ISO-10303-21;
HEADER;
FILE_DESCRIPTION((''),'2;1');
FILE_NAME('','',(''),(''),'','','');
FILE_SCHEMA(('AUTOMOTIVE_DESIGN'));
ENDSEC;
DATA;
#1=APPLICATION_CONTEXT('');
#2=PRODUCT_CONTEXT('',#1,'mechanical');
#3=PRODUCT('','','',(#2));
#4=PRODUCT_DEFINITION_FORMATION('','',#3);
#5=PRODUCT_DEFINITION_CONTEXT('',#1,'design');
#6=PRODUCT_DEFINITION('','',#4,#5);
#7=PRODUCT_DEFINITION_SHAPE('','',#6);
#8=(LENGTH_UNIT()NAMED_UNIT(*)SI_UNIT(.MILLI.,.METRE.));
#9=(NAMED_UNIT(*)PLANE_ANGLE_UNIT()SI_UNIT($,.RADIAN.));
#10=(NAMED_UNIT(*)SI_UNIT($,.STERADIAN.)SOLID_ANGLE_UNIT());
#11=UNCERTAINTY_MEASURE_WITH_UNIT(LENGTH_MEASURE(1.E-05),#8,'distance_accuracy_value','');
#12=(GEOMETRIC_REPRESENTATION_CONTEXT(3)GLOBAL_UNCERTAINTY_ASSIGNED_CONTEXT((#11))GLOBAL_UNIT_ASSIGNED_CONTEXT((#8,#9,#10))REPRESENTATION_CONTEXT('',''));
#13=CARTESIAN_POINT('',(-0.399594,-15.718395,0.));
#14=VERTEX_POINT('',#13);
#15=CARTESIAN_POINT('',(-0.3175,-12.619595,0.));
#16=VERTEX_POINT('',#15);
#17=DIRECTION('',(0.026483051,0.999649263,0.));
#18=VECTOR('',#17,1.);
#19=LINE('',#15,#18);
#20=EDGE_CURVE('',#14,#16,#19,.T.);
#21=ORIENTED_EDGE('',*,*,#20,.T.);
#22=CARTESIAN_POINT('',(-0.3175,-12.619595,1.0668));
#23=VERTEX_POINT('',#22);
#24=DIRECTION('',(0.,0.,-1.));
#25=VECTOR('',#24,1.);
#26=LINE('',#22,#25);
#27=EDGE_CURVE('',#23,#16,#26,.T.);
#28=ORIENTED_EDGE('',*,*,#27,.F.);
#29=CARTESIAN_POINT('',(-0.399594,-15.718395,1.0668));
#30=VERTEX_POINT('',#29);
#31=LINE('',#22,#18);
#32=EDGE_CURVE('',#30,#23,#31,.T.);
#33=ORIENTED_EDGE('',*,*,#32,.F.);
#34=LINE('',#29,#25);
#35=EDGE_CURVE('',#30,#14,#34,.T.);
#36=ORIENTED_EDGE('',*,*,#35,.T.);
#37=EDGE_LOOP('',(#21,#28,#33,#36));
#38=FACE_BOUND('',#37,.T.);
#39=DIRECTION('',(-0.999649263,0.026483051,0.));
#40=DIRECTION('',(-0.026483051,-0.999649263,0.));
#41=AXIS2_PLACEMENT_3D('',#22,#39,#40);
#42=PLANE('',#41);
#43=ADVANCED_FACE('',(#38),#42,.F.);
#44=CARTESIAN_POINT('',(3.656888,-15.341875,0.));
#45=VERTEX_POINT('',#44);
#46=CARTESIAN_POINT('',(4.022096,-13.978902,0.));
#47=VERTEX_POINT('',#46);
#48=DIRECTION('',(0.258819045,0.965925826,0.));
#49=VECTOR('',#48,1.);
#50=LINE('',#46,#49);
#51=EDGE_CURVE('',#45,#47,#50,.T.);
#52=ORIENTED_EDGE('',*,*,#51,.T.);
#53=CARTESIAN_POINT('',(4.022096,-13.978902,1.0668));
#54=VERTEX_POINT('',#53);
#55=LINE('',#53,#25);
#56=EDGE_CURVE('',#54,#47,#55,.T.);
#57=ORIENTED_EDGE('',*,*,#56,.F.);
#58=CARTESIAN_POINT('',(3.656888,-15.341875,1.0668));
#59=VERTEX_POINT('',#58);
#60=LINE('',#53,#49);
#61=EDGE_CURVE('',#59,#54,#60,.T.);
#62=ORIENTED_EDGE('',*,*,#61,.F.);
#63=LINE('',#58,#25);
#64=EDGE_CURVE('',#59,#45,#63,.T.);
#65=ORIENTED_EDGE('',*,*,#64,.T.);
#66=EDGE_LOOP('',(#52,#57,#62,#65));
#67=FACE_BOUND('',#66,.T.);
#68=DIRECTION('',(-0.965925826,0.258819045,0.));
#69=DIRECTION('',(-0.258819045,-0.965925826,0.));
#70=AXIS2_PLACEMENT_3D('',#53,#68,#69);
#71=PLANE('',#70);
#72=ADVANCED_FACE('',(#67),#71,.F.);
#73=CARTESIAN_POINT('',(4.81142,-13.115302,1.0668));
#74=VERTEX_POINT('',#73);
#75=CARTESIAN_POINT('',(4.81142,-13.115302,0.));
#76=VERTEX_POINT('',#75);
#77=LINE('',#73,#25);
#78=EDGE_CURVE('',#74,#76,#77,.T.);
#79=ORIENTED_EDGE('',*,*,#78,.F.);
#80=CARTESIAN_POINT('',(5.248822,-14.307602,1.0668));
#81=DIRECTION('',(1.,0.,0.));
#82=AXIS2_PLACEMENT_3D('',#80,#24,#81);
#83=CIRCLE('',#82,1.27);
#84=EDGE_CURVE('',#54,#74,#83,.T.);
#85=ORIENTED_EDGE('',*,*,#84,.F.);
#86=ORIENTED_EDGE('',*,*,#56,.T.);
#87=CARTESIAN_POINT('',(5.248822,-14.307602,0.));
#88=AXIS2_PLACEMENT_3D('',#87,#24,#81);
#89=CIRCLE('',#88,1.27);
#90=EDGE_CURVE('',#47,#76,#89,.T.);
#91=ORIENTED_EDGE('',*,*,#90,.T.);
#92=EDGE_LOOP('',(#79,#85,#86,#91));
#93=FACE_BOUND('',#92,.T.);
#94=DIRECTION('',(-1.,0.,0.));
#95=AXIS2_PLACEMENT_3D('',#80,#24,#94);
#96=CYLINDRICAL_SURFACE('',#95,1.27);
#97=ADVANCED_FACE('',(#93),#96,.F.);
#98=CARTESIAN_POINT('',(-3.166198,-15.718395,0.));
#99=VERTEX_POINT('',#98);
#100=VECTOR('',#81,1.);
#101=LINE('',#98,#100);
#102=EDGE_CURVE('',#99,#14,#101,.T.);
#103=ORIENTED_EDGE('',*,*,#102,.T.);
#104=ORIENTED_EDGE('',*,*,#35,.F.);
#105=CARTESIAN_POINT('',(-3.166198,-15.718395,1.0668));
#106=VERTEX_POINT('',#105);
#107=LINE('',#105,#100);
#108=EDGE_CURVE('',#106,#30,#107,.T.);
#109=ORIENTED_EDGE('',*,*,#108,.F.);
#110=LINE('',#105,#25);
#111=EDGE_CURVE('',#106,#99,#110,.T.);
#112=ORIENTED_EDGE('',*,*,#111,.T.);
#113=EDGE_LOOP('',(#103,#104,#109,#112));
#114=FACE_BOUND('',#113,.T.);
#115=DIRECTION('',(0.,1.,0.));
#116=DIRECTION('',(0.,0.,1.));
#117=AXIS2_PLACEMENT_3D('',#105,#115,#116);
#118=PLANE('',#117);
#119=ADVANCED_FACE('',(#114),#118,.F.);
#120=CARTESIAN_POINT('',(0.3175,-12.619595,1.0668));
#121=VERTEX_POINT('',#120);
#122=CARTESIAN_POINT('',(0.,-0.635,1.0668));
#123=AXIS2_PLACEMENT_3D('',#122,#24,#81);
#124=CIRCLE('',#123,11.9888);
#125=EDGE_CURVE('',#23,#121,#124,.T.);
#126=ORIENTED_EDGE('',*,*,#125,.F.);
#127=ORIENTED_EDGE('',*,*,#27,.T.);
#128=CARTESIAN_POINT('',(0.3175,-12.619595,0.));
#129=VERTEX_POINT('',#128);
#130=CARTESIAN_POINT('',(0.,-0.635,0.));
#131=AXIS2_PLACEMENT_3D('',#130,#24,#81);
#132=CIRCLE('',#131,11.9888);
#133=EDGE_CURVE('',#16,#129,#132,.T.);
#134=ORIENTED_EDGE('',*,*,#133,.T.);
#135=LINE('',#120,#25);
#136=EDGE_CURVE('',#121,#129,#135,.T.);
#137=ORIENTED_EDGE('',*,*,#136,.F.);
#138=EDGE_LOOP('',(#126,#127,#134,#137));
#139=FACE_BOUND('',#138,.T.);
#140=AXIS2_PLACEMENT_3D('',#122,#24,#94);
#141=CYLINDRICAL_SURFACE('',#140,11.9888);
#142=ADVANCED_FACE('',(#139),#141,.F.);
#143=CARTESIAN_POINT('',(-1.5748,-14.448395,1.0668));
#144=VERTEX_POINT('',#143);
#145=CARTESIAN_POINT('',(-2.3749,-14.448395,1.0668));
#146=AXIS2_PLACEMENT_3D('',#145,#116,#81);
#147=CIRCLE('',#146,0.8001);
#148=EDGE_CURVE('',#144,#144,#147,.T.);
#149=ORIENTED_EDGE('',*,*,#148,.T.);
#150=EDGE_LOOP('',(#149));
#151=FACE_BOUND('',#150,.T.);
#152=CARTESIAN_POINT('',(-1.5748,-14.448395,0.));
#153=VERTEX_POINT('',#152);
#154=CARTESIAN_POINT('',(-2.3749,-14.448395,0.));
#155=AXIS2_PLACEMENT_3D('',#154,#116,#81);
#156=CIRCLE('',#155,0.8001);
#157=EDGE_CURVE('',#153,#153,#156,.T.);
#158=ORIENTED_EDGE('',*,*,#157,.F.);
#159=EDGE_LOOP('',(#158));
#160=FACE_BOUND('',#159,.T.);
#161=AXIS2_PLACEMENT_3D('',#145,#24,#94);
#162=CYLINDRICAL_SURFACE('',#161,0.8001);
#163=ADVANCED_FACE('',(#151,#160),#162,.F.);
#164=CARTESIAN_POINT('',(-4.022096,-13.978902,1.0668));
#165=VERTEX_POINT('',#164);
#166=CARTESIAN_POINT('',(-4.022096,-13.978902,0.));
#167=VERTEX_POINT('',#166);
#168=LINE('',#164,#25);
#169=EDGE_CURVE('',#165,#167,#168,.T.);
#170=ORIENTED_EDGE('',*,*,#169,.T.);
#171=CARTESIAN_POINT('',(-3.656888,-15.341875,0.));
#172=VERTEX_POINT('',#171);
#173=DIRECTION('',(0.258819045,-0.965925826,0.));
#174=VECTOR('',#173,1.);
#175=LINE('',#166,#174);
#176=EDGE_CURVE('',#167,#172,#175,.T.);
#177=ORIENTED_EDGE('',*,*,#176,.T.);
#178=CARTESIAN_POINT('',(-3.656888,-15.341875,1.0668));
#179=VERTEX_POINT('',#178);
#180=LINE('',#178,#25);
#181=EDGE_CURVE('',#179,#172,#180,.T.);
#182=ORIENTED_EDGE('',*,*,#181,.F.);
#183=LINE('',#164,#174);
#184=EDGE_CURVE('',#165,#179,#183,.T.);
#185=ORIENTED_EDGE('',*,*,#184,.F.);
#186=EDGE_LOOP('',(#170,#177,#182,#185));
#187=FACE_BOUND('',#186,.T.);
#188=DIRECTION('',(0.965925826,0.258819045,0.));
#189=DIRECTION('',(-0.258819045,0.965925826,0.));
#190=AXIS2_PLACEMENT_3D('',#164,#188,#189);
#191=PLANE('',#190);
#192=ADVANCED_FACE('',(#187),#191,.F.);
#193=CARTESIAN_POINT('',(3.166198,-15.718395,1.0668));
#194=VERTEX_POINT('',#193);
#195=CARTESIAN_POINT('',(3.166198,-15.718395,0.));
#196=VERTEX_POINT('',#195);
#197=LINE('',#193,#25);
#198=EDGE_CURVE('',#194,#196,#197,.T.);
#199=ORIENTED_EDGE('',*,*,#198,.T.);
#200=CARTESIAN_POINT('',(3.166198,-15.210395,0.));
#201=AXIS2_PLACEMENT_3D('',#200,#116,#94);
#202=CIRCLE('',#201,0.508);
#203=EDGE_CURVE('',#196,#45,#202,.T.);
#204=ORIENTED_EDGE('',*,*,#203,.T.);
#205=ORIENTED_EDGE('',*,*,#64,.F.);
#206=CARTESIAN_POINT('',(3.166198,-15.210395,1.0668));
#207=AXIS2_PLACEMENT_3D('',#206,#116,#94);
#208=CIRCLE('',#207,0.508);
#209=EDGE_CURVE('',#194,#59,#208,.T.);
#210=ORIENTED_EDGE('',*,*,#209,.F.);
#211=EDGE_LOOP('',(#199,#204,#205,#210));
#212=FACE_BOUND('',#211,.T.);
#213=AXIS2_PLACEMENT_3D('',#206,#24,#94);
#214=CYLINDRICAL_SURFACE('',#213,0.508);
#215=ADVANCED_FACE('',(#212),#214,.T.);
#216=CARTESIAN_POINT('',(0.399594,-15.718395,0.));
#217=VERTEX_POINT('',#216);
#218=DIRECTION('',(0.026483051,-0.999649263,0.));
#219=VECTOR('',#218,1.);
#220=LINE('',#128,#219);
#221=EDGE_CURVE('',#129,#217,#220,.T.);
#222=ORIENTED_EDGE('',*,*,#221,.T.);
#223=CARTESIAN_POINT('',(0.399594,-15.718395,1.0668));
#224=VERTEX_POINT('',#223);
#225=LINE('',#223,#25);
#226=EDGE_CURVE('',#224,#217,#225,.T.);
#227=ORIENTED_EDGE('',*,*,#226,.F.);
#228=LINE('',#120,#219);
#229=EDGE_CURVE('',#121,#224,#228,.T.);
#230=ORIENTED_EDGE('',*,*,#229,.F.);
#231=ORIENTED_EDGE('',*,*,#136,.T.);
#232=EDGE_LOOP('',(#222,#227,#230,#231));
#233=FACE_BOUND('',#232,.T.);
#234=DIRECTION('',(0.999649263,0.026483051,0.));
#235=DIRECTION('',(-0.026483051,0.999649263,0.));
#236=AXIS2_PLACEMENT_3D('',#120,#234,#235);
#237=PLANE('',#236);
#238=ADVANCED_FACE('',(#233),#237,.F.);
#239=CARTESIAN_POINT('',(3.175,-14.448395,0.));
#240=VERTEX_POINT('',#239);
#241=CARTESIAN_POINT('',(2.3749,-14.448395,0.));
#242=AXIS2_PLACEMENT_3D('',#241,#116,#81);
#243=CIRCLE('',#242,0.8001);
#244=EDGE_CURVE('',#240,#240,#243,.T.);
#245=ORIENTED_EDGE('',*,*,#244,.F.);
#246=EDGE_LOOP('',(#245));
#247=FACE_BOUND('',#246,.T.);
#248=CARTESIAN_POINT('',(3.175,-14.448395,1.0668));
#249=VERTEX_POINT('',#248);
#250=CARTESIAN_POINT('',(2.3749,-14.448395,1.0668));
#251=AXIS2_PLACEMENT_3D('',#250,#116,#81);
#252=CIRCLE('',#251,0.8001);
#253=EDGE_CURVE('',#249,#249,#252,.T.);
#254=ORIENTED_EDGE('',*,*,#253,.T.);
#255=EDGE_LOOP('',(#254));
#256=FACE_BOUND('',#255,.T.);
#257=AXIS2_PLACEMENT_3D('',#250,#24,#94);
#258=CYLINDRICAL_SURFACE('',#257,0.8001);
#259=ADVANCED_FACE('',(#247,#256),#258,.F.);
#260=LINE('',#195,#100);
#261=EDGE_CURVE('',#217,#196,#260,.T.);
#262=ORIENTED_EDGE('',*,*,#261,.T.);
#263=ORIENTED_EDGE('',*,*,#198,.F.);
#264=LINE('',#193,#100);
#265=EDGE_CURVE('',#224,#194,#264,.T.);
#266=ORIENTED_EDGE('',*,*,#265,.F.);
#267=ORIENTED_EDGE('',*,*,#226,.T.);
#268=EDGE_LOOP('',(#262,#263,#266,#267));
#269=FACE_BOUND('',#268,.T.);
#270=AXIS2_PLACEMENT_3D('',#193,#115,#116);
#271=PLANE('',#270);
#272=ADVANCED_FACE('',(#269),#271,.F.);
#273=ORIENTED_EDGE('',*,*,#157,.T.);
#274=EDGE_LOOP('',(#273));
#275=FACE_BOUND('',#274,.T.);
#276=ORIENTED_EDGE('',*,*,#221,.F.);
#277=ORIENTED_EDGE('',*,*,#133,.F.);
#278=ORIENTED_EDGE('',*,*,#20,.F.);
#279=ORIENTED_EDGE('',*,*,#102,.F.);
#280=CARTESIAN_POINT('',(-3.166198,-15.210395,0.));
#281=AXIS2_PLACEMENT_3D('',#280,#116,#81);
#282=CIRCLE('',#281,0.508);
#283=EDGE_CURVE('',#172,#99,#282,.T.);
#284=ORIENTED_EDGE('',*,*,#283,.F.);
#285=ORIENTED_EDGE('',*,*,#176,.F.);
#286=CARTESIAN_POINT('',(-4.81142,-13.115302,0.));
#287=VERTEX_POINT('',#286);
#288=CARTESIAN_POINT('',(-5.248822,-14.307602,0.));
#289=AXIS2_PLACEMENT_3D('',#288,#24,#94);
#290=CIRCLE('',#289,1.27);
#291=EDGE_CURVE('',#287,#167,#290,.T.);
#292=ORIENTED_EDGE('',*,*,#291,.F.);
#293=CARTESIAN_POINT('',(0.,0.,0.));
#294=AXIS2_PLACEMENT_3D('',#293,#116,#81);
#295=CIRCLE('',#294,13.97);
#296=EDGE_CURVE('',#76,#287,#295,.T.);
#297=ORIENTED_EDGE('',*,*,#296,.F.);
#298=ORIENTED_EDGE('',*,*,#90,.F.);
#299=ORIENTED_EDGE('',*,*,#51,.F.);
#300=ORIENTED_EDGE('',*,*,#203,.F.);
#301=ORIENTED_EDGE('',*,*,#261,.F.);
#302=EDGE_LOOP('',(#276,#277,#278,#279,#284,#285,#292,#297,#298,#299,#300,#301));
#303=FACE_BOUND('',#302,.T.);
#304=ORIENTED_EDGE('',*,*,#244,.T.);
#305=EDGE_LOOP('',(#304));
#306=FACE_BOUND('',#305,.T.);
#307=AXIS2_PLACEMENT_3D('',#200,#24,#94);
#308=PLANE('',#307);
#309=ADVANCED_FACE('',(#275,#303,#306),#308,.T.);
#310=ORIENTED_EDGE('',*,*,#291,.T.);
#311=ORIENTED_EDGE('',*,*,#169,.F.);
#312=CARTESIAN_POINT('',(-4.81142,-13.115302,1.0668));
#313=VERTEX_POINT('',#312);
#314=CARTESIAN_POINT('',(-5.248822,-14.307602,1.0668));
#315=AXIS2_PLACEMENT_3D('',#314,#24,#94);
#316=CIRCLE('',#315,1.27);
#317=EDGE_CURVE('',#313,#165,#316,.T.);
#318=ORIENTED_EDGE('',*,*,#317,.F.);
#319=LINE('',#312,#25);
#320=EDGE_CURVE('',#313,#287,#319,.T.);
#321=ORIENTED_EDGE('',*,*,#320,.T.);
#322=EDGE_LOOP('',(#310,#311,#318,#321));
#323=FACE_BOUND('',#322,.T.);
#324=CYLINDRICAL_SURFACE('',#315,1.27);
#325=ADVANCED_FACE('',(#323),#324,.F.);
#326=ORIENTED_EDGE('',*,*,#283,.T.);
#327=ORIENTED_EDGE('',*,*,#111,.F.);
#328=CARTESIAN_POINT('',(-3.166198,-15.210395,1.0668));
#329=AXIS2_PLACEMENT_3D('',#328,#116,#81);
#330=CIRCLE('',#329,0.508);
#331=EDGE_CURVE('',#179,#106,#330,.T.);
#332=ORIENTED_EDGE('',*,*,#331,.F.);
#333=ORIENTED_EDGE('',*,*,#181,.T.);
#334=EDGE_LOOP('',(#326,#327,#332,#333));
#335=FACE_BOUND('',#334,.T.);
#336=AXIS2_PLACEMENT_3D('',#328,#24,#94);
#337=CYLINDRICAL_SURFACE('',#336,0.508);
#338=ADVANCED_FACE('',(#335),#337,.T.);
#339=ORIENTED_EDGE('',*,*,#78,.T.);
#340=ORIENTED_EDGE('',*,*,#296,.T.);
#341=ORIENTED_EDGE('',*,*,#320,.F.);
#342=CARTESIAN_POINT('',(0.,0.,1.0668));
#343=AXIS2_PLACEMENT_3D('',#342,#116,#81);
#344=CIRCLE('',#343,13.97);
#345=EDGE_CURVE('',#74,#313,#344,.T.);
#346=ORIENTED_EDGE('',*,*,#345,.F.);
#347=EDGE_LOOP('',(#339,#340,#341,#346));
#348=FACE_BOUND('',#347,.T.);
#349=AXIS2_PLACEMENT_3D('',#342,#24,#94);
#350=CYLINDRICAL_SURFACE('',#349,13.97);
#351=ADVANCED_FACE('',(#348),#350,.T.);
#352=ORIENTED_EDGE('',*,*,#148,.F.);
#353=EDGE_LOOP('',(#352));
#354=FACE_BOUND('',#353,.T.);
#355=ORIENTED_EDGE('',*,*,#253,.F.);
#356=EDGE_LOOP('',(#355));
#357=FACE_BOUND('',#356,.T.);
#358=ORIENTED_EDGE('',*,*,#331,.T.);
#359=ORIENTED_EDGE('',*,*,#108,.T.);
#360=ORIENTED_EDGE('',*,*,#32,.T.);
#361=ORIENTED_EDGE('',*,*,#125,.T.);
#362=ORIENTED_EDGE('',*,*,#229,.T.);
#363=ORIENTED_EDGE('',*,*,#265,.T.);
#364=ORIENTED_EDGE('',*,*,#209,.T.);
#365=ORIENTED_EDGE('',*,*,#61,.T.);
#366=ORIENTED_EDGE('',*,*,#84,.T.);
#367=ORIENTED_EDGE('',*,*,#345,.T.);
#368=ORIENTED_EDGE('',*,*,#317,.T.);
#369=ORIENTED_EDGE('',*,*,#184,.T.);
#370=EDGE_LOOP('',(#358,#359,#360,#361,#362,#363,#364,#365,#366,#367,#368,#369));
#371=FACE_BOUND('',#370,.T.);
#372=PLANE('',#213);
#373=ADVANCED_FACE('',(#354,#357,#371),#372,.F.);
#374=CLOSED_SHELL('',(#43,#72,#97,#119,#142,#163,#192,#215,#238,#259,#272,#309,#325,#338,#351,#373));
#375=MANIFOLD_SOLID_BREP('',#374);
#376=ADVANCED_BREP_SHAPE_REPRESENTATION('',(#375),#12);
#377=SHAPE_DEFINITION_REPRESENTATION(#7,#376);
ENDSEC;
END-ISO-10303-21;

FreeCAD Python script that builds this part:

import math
import FreeCAD as App
import Part
import Sketcher

V = App.Vector
Q = App.Units.Quantity

doc = App.newDocument("Part")
body = doc.addObject("PartDesign::Body", "Body")

sketch1 = body.newObject("Sketcher::SketchObject", "Sketch")
sketch1.AttachmentSupport = (doc.getObject("XY_Plane"), [""])
sketch1.MapMode = "FlatFace"
sketch1.addGeometry([
    Part.LineSegment(V(0.4, -15.7, 0), V(3.2, -15.7, 0)),
    Part.ArcOfCircle(Part.Circle(V(3.2, -15.2, 0), V(0, 0, 1), 0.5), math.radians(-90), math.radians(-15)),
    Part.LineSegment(V(3.7, -15.3, 0), V(4, -14, 0)),
    Part.ArcOfCircle(Part.Circle(V(5.2, -14.3, 0), V(0, 0, 1), 1.3), math.radians(110), math.radians(165)),
    Part.ArcOfCircle(Part.Circle(V(0, 0, 0), V(0, 0, 1), 14), math.radians(-70), math.radians(250)),
    Part.ArcOfCircle(Part.Circle(V(-5.2, -14.3, 0), V(0, 0, 1), 1.3), math.radians(15), math.radians(70)),
    Part.LineSegment(V(-4, -14, 0), V(-3.7, -15.3, 0)),
    Part.ArcOfCircle(Part.Circle(V(-3.2, -15.2, 0), V(0, 0, 1), 0.5), math.radians(-165), math.radians(-90)),
    Part.LineSegment(V(-3.2, -15.7, 0), V(-0.4, -15.7, 0)),
    Part.LineSegment(V(-0.4, -15.7, 0), V(-0.3, -12.6, 0)),
    Part.ArcOfCircle(Part.Circle(V(0, -0.6, 0), V(0, 0, 1), 12), math.radians(-88), math.radians(268)),
    Part.LineSegment(V(0.3, -12.6, 0), V(0.4, -15.7, 0)),
    Part.Circle(V(2.4, -14.4, 0), V(0, 0, 1), 0.8),
    Part.Circle(V(-2.4, -14.4, 0), V(0, 0, 1), 0.8),
], False)
sketch1.addConstraint([
    Sketcher.Constraint("Tangent", 0, 2, 1, 1),
    Sketcher.Constraint("Tangent", 1, 2, 2, 1),
    Sketcher.Constraint("Tangent", 2, 2, 3, 2),
    Sketcher.Constraint("Tangent", 3, 1, 4, 1),
    Sketcher.Constraint("Tangent", 4, 2, 5, 2),
    Sketcher.Constraint("Tangent", 5, 1, 6, 1),
    Sketcher.Constraint("Tangent", 6, 2, 7, 1),
    Sketcher.Constraint("Tangent", 7, 2, 8, 1),
    Sketcher.Constraint("Coincident", 8, 2, 9, 1),
    Sketcher.Constraint("Coincident", 9, 2, 10, 2),
    Sketcher.Constraint("Coincident", 10, 1, 11, 1),
    Sketcher.Constraint("Coincident", 11, 2, 0, 1),
    Sketcher.Constraint("Horizontal", 0),
    Sketcher.Constraint("Horizontal", 8),
    Sketcher.Constraint("Coincident", 4, 3, -1, 1),
    Sketcher.Constraint("Equal", 3, 5),
    Sketcher.Constraint("Equal", 1, 7),
    Sketcher.Constraint("Equal", 12, 13),
    Sketcher.Constraint("Symmetric", 1, 3, 7, 3, -2),
    Sketcher.Constraint("Symmetric", 12, 3, 13, 3, -2),
    Sketcher.Constraint("Symmetric", 9, 2, 10, 1, -2),
    Sketcher.Constraint("Horizontal", 3, 3, 5, 3),
    Sketcher.Constraint("Equal", 0, 8),
    Sketcher.Constraint("Radius", 1, Q("0.02 in")),
    Sketcher.Constraint("Radius", 3, Q("0.05 in")),
    Sketcher.Constraint("Radius", 4, Q("0.55 in")),
    Sketcher.Constraint("Diameter", 12, Q("0.063 in")),
    Sketcher.Constraint("Angle", 2, Q("75 deg")),
    Sketcher.Constraint("Radius", 10, Q("0.472 in")),
    Sketcher.Constraint("DistanceY", 1, 3, 12, 3, Q("0.03 in")),
    Sketcher.Constraint("DistanceY", 10, 3, -1, 1, Q("0.025 in")),
    Sketcher.Constraint("DistanceX", 13, 3, 12, 3, Q("0.187 in")),
    Sketcher.Constraint("DistanceY", 2, 2, 3, 1, Q("0.034 in")),
    Sketcher.Constraint("DistanceX", 13, 3, 9, 2, Q("0.081 in")),
    Sketcher.Constraint("DistanceY", 13, 3, 9, 2, Q("0.072 in")),
    Sketcher.Constraint("DistanceX", 0, 1, 0, 2, 2.766603),
])
pad1 = body.newObject("PartDesign::Pad", "Pad")
pad1.Profile = sketch1
pad1.Length = Q("0.042 in")

doc.recompute()
